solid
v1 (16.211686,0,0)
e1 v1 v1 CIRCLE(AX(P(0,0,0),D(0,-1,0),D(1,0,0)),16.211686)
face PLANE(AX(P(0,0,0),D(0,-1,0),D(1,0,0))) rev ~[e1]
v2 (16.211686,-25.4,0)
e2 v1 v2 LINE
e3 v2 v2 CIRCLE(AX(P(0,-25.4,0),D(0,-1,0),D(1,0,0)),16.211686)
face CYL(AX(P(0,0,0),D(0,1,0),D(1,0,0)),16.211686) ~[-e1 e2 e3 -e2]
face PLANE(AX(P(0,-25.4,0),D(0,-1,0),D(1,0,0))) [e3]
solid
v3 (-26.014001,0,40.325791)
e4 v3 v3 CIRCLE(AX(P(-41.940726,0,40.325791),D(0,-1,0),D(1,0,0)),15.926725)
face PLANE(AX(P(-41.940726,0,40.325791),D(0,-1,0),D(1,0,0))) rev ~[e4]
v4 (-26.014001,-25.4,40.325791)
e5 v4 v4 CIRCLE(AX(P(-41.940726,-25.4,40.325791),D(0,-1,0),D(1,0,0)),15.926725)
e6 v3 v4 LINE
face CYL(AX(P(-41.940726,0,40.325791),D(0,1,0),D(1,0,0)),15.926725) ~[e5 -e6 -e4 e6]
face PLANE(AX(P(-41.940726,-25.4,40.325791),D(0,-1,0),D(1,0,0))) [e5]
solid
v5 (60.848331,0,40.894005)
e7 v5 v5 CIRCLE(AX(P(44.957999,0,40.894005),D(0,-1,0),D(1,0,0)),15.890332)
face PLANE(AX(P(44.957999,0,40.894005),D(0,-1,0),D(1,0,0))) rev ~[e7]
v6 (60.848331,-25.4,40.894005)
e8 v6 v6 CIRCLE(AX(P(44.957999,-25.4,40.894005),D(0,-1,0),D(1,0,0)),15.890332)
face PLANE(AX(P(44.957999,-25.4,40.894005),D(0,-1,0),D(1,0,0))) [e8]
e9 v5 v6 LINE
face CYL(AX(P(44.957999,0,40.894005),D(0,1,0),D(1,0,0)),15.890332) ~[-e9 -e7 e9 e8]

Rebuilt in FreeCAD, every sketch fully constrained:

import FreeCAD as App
import Part
import Sketcher

V = App.Vector
Q = App.Units.Quantity

doc = App.newDocument("Part")
body = doc.addObject("PartDesign::Body", "Body")
body.AllowCompound = True

# Sketch on XZ plane
sketch1 = doc.addObject("Sketcher::SketchObject", "Sketch")
body.addObject(sketch1)
sketch1.AttachmentSupport = (doc.XZ_Plane, [""])
sketch1.MapMode = "FlatFace"
sketch1.addGeometry(Part.Circle(V(0, 0, 0), V(0, 0, 1), 16), False)
sketch1.addConstraint([
    Sketcher.Constraint("Coincident", 0, 3, -1, 1),
    Sketcher.Constraint("Diameter", 0, 32.423372),
])
pad1 = doc.addObject("PartDesign::Pad", "Pad")
body.addObject(pad1)
pad1.Profile = sketch1
pad1.Length = Q("1 in")

# Sketch on XZ plane
sketch2 = doc.addObject("Sketcher::SketchObject", "Sketch001")
body.addObject(sketch2)
sketch2.AttachmentSupport = (doc.XZ_Plane, [""])
sketch2.MapMode = "FlatFace"
sketch2.addGeometry([
    Part.Circle(V(-42, 40, 0), V(0, 0, 1), 16),
    Part.Circle(V(0, 0, 0), V(0, 0, 1), 16),
], False)
sketch2.addConstraint([
    Sketcher.Constraint("Coincident", 1, 3, -1, 1),
    Sketcher.Constraint("Diameter", 0, 31.85345),
    Sketcher.Constraint("Diameter", 1, 32.247944),
    Sketcher.Constraint("DistanceY", -1, 1, 0, 3, 40.325791),
    Sketcher.Constraint("DistanceX", 0, 3, -1, 1, 41.940726),
])
pad2 = doc.addObject("PartDesign::Pad", "Pad001")
body.addObject(pad2)
pad2.Profile = sketch2
pad2.Length = Q("1 in")
body2 = doc.addObject("PartDesign::Body", "Body001")

# Sketch on XZ plane
sketch3 = doc.addObject("Sketcher::SketchObject", "Sketch002")
body2.addObject(sketch3)
sketch3.AttachmentSupport = (doc.getObject("XZ_Plane001"), [""])
sketch3.MapMode = "FlatFace"
sketch3.addGeometry(Part.Circle(V(45, 41, 0), V(0, 0, 1), 16), False)
sketch3.addConstraint([
    Sketcher.Constraint("DistanceX", -1, 1, 0, 3, Q("1.77 in")),
    Sketcher.Constraint("DistanceY", -1, 1, 0, 3, Q("1.6100002 in")),
    Sketcher.Constraint("Diameter", 0, 31.780664),
])
pad3 = doc.addObject("PartDesign::Pad", "Pad002")
body2.addObject(pad3)
pad3.Profile = sketch3
pad3.Length = Q("1 in")

doc.recompute()
